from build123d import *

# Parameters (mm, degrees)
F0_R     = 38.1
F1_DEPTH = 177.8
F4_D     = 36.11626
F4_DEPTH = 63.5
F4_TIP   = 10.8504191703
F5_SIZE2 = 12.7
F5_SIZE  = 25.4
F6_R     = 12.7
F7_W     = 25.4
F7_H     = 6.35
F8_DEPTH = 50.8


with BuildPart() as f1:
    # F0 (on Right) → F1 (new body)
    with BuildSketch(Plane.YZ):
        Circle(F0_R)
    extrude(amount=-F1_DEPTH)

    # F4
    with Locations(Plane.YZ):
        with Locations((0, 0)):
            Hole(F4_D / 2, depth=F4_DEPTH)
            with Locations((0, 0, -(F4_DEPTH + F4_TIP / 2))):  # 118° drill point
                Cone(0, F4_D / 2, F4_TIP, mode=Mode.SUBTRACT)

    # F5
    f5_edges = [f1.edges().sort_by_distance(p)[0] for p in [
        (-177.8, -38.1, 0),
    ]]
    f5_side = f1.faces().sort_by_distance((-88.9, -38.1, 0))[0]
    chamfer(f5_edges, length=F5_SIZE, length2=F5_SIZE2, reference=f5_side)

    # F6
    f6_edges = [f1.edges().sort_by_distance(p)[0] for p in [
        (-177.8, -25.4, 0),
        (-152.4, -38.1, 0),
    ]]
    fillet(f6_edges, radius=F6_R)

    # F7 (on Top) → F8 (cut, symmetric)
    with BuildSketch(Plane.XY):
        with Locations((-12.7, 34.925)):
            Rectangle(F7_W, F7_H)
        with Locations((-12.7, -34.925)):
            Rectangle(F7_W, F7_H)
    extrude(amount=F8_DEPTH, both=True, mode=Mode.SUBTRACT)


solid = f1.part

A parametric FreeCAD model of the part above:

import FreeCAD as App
import Part
import Sketcher
Q = App.Units.Quantity


def edges_at(feature, points):
    """Names of the edges that pass closest to the given points."""
    edges = feature.Shape.Edges
    near = lambda p: min(range(len(edges)), key=lambda i: edges[i].distToShape(Part.Vertex(*p))[0])
    return sorted({f"Edge{near(p) + 1}" for p in points})


def add_polygon(sketch, points):
    """Adds a closed chain of lines whose ends are joined by coincident constraints."""
    first, n = sketch.GeometryCount, len(points)
    for a, b in zip(points, points[1:] + points[:1]):
        sketch.addGeometry(Part.LineSegment(App.Vector(*a, 0), App.Vector(*b, 0)), False)
    for i in range(n):
        sketch.addConstraint(Sketcher.Constraint("Coincident", first + i, 2, first + (i + 1) % n, 1))

doc = App.newDocument("Part")
body = doc.addObject("PartDesign::Body", "Body")

# Sketch on YZ plane
sketch1 = body.newObject("Sketcher::SketchObject", "Sketch")
sketch1.AttachmentSupport = (doc.getObject("YZ_Plane"), [""])
sketch1.MapMode = "FlatFace"
sketch1.addGeometry(Part.Circle(App.Vector(0, 0, 0), App.Vector(0, 0, 1), 38), False)
sketch1.addConstraint([
    Sketcher.Constraint("Coincident", 0, 3, -1, 1),
    Sketcher.Constraint("Diameter", 0, Q("3 in")),
])
pad1 = body.newObject("PartDesign::Pad", "Pad")
pad1.Profile = sketch1
pad1.Length = Q("7 in")
pad1.Reversed = True

# Sketch on YZ plane
sketch2 = body.newObject("Sketcher::SketchObject", "Sketch001")
sketch2.AttachmentSupport = (doc.getObject("YZ_Plane"), [""])
sketch2.MapMode = "FlatFace"
sketch2.addGeometry(Part.Circle(App.Vector(0, 0, 0), App.Vector(0, 0, 1), 18), False)
sketch2.addConstraint([
    Sketcher.Constraint("Coincident", 0, 3, -1, 1),
    Sketcher.Constraint("Diameter", 0, Q("1.4219 in")),
])
doc.recompute()
hole = body.newObject("PartDesign::Hole", "Hole")
hole.Profile = sketch2
hole.ThreadType = "None"
hole.Diameter = Q("1.4219 in")
hole.DepthType = "Dimension"
hole.Depth = Q("2.5 in")
hole.DrillPoint = "Angled"
hole.DrillPointAngle = 118
doc.recompute()

chamfer = body.newObject("PartDesign::Chamfer", "Chamfer")
chamfer.Base = (hole, edges_at(hole, [(-177.8, -38.1, 0)]))
chamfer.ChamferType = "Two distances"
chamfer.Size = Q("1 in")
chamfer.Size2 = Q("0.5 in")
doc.recompute()

fillet = body.newObject("PartDesign::Fillet", "Fillet")
fillet.Base = (chamfer, edges_at(chamfer, [(-177.8, -25.4, 0), (-152.4, -38.1, 0)]))
fillet.Radius = Q("0.5 in")

# Sketch on XY plane
sketch3 = body.newObject("Sketcher::SketchObject", "Sketch002")
sketch3.AttachmentSupport = (doc.getObject("XY_Plane"), [""])
sketch3.MapMode = "FlatFace"
add_polygon(sketch3, [(-25, 38), (-25, 32), (0, 32), (0, 38)])  # lines 0-3
add_polygon(sketch3, [(-25, -32), (-25, -38), (0, -38), (0, -32)])  # lines 4-7
sketch3.addConstraint([
    Sketcher.Constraint("Vertical", 0),
    Sketcher.Constraint("Horizontal", 1),
    Sketcher.Constraint("Vertical", 2),
    Sketcher.Constraint("Horizontal", 3),
    Sketcher.Constraint("Vertical", 4),
    Sketcher.Constraint("Horizontal", 5),
    Sketcher.Constraint("Vertical", 6),
    Sketcher.Constraint("Horizontal", 7),
    Sketcher.Constraint("Symmetric", 2, 2, 5, 2, -1, 1),
    Sketcher.Constraint("Symmetric", 1, 2, 6, 2, -1),
    Sketcher.Constraint("Vertical", 3, 2, 4, 2),
    Sketcher.Constraint("DistanceX", 1, 1, 1, 2, Q("1 in")),
    Sketcher.Constraint("DistanceY", 4, 2, 3, 2, Q("3 in")),
    Sketcher.Constraint("DistanceY", 0, 2, 0, 1, Q("0.25 in")),
])
pocket1 = body.newObject("PartDesign::Pocket", "Pocket")
pocket1.Profile = sketch3
pocket1.Length = Q("4 in")
pocket1.Midplane = True

doc.recompute()
